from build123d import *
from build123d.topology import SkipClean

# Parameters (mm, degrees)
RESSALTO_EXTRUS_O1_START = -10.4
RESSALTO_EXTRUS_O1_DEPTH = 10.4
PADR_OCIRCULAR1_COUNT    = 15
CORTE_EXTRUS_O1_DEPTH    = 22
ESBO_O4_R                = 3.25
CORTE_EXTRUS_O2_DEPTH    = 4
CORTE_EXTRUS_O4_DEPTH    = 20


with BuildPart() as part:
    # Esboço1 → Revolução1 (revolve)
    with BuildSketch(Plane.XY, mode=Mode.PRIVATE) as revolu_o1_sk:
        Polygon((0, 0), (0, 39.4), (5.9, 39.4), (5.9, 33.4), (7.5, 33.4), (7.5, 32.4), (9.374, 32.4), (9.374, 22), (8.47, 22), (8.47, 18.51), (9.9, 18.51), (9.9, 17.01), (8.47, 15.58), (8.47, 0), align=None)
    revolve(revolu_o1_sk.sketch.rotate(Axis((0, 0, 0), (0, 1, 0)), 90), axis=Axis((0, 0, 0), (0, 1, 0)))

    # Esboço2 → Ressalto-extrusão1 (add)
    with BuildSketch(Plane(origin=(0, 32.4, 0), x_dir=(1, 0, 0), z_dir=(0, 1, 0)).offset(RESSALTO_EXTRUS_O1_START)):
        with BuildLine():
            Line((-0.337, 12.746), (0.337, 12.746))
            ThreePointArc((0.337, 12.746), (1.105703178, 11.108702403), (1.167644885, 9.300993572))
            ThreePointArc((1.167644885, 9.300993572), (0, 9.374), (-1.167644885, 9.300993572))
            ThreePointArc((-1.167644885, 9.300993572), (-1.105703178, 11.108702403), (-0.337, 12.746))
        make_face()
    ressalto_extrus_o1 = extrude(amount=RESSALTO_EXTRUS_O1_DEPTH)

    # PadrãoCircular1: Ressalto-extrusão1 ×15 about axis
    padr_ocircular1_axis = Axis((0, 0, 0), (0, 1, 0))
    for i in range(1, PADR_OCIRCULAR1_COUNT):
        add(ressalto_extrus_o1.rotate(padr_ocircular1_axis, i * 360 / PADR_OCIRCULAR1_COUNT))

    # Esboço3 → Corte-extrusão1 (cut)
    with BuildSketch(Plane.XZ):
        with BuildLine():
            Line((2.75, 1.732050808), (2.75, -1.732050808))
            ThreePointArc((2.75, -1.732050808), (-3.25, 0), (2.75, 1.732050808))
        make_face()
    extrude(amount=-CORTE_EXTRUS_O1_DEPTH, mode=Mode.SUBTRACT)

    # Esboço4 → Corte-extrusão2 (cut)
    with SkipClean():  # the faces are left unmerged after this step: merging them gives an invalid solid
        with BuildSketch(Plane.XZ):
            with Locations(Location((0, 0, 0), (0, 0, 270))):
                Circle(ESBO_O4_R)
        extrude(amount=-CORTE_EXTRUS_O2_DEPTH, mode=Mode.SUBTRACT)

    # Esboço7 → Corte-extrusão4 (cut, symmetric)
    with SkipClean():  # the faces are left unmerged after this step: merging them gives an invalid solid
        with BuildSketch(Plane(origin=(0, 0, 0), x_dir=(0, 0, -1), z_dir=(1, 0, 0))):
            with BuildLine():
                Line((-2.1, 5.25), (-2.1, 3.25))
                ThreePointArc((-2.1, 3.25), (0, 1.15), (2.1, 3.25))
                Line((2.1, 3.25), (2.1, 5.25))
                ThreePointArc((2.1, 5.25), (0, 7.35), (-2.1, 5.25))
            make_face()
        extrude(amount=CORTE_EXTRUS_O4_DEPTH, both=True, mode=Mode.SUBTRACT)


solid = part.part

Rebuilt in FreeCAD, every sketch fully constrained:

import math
import FreeCAD as App
import Part
import Sketcher
Q = App.Units.Quantity

doc = App.newDocument("Part")
body = doc.addObject("PartDesign::Body", "Body")

# Sketch on XY plane
sketch1 = body.newObject("Sketcher::SketchObject", "Sketch")
sketch1.AttachmentSupport = (doc.getObject("XY_Plane"), [""])
sketch1.MapMode = "FlatFace"
sketch1.addGeometry([
    Part.LineSegment(App.Vector(0, 39.4, 0), App.Vector(0, 0, 0)),  # 0
    Part.LineSegment(App.Vector(0, 0, 0), App.Vector(8.5, 0, 0)),  # 1
    Part.LineSegment(App.Vector(8.5, 0, 0), App.Vector(8.5, 15.6, 0)),  # 2
    Part.LineSegment(App.Vector(8.5, 15.6, 0), App.Vector(9.9, 17, 0)),  # 3
    Part.LineSegment(App.Vector(9.9, 17, 0), App.Vector(9.9, 18.5, 0)),  # 4
    Part.LineSegment(App.Vector(9.9, 18.5, 0), App.Vector(8.5, 18.5, 0)),  # 5
    Part.LineSegment(App.Vector(8.5, 18.5, 0), App.Vector(8.5, 22, 0)),  # 6
    Part.LineSegment(App.Vector(8.5, 22, 0), App.Vector(9.4, 22, 0)),  # 7
    Part.LineSegment(App.Vector(9.4, 22, 0), App.Vector(9.4, 32.4, 0)),  # 8
    Part.LineSegment(App.Vector(9.4, 32.4, 0), App.Vector(7.5, 32.4, 0)),  # 9
    Part.LineSegment(App.Vector(7.5, 32.4, 0), App.Vector(7.5, 33.4, 0)),  # 10
    Part.LineSegment(App.Vector(7.5, 33.4, 0), App.Vector(5.9, 33.4, 0)),  # 11
    Part.LineSegment(App.Vector(5.9, 33.4, 0), App.Vector(5.9, 39.4, 0)),  # 12
    Part.LineSegment(App.Vector(5.9, 39.4, 0), App.Vector(0, 39.4, 0)),  # 13
], False)
sketch1.addConstraint([
    Sketcher.Constraint("Coincident", 0, 2, 1, 1),
    Sketcher.Constraint("Coincident", 1, 2, 2, 1),
    Sketcher.Constraint("Coincident", 2, 2, 3, 1),
    Sketcher.Constraint("Coincident", 3, 2, 4, 1),
    Sketcher.Constraint("Coincident", 4, 2, 5, 1),
    Sketcher.Constraint("Coincident", 5, 2, 6, 1),
    Sketcher.Constraint("Coincident", 6, 2, 7, 1),
    Sketcher.Constraint("Coincident", 7, 2, 8, 1),
    Sketcher.Constraint("Coincident", 8, 2, 9, 1),
    Sketcher.Constraint("Coincident", 9, 2, 10, 1),
    Sketcher.Constraint("Coincident", 10, 2, 11, 1),
    Sketcher.Constraint("Coincident", 11, 2, 12, 1),
    Sketcher.Constraint("Coincident", 12, 2, 13, 1),
    Sketcher.Constraint("Coincident", 13, 2, 0, 1),
    Sketcher.Constraint("Vertical", 0),
    Sketcher.Constraint("Horizontal", 1),
    Sketcher.Constraint("Vertical", 2),
    Sketcher.Constraint("Vertical", 4),
    Sketcher.Constraint("Horizontal", 5),
    Sketcher.Constraint("Vertical", 6),
    Sketcher.Constraint("Horizontal", 7),
    Sketcher.Constraint("Vertical", 8),
    Sketcher.Constraint("Horizontal", 9),
    Sketcher.Constraint("Vertical", 10),
    Sketcher.Constraint("Horizontal", 11),
    Sketcher.Constraint("Vertical", 12),
    Sketcher.Constraint("Horizontal", 13),
    Sketcher.Constraint("Coincident", 0, 2, -1, 1),
    Sketcher.Constraint("Vertical", 2, 2, 5, 2),
    Sketcher.Constraint("DistanceY", 10, 1, 10, 2, 1.0),
    Sketcher.Constraint("DistanceY", 12, 1, 12, 2, 6.0),
    Sketcher.Constraint("Angle", 3, Q("45 deg")),
    Sketcher.Constraint("DistanceX", 11, 2, 11, 1, 1.6),
    Sketcher.Constraint("DistanceX", 13, 2, 13, 1, 5.9),
    Sketcher.Constraint("DistanceY", 0, 2, 0, 1, 39.4),
    Sketcher.Constraint("DistanceY", 4, 1, 4, 2, 1.5),
    Sketcher.Constraint("DistanceY", 8, 1, 8, 2, 10.4),
    Sketcher.Constraint("DistanceX", 1, 1, 1, 2, 8.47),
    Sketcher.Constraint("DistanceX", 5, 2, 5, 1, 1.43),
    Sketcher.Constraint("DistanceY", 2, 1, 2, 2, 15.58),
    Sketcher.Constraint("DistanceX", 7, 1, 7, 2, 0.904),
])
revolution = body.newObject("PartDesign::Revolution", "Revolution")
revolution.Profile = sketch1
revolution.ReferenceAxis = (sketch1, ["V_Axis"])
revolution.Angle = 360

# Sketch on XZ plane
sketch2 = body.newObject("Sketcher::SketchObject", "Sketch001")
sketch2.AttachmentSupport = (doc.getObject("XZ_Plane"), [""])
sketch2.MapMode = "FlatFace"
sketch2.AttachmentOffset = App.Placement(App.Vector(0, 0, -22), App.Rotation())
sketch2.addGeometry([
    Part.LineSegment(App.Vector(0.3, -12.7, 0), App.Vector(-0.3, -12.7, 0)),
    Part.ArcOfCircle(Part.Circle(App.Vector(3.3, -10.1, 0), App.Vector(0, 0, 1), 4.5), math.radians(170), math.radians(217)),
    Part.ArcOfCircle(Part.Circle(App.Vector(0, 0, 0), App.Vector(0, 0, 1), 9.4), math.radians(-97.16), math.radians(-82.84)),
    Part.ArcOfCircle(Part.Circle(App.Vector(-3.3, -10.1, 0), App.Vector(0, 0, 1), 4.5), math.radians(-37), math.radians(10)),
], False)
sketch2.addConstraint([
    Sketcher.Constraint("Coincident", 0, 2, 1, 2),
    Sketcher.Constraint("Coincident", 1, 1, 2, 1),
    Sketcher.Constraint("Coincident", 2, 2, 3, 2),
    Sketcher.Constraint("Coincident", 3, 1, 0, 1),
    Sketcher.Constraint("Horizontal", 0),
    Sketcher.Constraint("Coincident", 2, 3, -1, 1),
    Sketcher.Constraint("Equal", 1, 3),
    Sketcher.Constraint("Symmetric", 1, 3, 3, 3, -2),
    Sketcher.Constraint("Radius", 2, 9.374),
    Sketcher.Constraint("DistanceX", 0, 2, 0, 1, 0.674),
    Sketcher.Constraint("DistanceY", 0, 2, -1, 1, 12.746),
    Sketcher.Constraint("Radius", 1, 4.500107),
    Sketcher.Constraint("DistanceX", 3, 3, 1, 1, 2.101389),
])
pad1 = body.newObject("PartDesign::Pad", "Pad")
pad1.Profile = sketch2
pad1.Length = 10.4
pad1.Reversed = True
doc.recompute()

polarpattern = body.newObject("PartDesign::PolarPattern", "PolarPattern")
polarpattern.Originals = [pad1]
polarpattern.Axis = (doc.getObject("Y_Axis"), [""])
polarpattern.Angle = 360
polarpattern.Occurrences = 15
body.Tip = polarpattern

# Sketch on XZ plane
sketch3 = body.newObject("Sketcher::SketchObject", "Sketch002")
sketch3.AttachmentSupport = (doc.getObject("XZ_Plane"), [""])
sketch3.MapMode = "FlatFace"
sketch3.addGeometry([
    Part.LineSegment(App.Vector(2.8, -1.7, 0), App.Vector(2.8, 1.7, 0)),
    Part.ArcOfCircle(Part.Circle(App.Vector(0, 0, 0), App.Vector(0, 0, 1), 3.2), math.radians(32), math.radians(328)),
], False)
sketch3.addConstraint([
    Sketcher.Constraint("Coincident", 0, 1, 1, 2),
    Sketcher.Constraint("Coincident", 1, 1, 0, 2),
    Sketcher.Constraint("Vertical", 0),
    Sketcher.Constraint("Coincident", 1, 3, -1, 1),
    Sketcher.Constraint("Radius", 1, 3.25),
    Sketcher.Constraint("DistanceX", -1, 1, 0, 1, 2.75),
])
pocket1 = body.newObject("PartDesign::Pocket", "Pocket")
pocket1.Profile = sketch3
pocket1.Length = 22

# Sketch on XZ plane
sketch4 = body.newObject("Sketcher::SketchObject", "Sketch003")
sketch4.AttachmentSupport = (doc.getObject("XZ_Plane"), [""])
sketch4.MapMode = "FlatFace"
sketch4.addGeometry(Part.Circle(App.Vector(0, 0, 0), App.Vector(0, 0, 1), 3.2), False)
sketch4.addConstraint([
    Sketcher.Constraint("Coincident", 0, 3, -1, 1),
    Sketcher.Constraint("Diameter", 0, 6.5),
])
pocket2 = body.newObject("PartDesign::Pocket", "Pocket001")
pocket2.Profile = sketch4
pocket2.Length = 4

# Sketch on YZ plane
sketch5 = body.newObject("Sketcher::SketchObject", "Sketch004")
sketch5.AttachmentSupport = (doc.getObject("YZ_Plane"), [""])
sketch5.MapMode = "FlatFace"
sketch5.addGeometry([
    Part.LineSegment(App.Vector(5.2, 2.1, 0), App.Vector(3.2, 2.1, 0)),
    Part.ArcOfCircle(Part.Circle(App.Vector(3.2, 0, 0), App.Vector(0, 0, 1), 2.1), math.radians(90), math.radians(270)),
    Part.LineSegment(App.Vector(3.2, -2.1, 0), App.Vector(5.2, -2.1, 0)),
    Part.ArcOfCircle(Part.Circle(App.Vector(5.2, 0, 0), App.Vector(0, 0, 1), 2.1), math.radians(-90), math.radians(90)),
], False)
sketch5.addConstraint([
    Sketcher.Constraint("Tangent", 0, 2, 1, 1),
    Sketcher.Constraint("Tangent", 1, 2, 2, 1),
    Sketcher.Constraint("Tangent", 2, 2, 3, 1),
    Sketcher.Constraint("Tangent", 3, 2, 0, 1),
    Sketcher.Constraint("Horizontal", 0),
    Sketcher.Constraint("Horizontal", 2),
    Sketcher.Constraint("PointOnObject", 1, 3, -1),
    Sketcher.Constraint("Radius", 1, 2.1),
    Sketcher.Constraint("DistanceX", 0, 2, 0, 1, 2.0),
    Sketcher.Constraint("DistanceX", -1, 1, 1, 3, 3.25),
])
pocket3 = body.newObject("PartDesign::Pocket", "Pocket002")
pocket3.Profile = sketch5
pocket3.Length = 40
pocket3.Midplane = True

doc.recompute()
